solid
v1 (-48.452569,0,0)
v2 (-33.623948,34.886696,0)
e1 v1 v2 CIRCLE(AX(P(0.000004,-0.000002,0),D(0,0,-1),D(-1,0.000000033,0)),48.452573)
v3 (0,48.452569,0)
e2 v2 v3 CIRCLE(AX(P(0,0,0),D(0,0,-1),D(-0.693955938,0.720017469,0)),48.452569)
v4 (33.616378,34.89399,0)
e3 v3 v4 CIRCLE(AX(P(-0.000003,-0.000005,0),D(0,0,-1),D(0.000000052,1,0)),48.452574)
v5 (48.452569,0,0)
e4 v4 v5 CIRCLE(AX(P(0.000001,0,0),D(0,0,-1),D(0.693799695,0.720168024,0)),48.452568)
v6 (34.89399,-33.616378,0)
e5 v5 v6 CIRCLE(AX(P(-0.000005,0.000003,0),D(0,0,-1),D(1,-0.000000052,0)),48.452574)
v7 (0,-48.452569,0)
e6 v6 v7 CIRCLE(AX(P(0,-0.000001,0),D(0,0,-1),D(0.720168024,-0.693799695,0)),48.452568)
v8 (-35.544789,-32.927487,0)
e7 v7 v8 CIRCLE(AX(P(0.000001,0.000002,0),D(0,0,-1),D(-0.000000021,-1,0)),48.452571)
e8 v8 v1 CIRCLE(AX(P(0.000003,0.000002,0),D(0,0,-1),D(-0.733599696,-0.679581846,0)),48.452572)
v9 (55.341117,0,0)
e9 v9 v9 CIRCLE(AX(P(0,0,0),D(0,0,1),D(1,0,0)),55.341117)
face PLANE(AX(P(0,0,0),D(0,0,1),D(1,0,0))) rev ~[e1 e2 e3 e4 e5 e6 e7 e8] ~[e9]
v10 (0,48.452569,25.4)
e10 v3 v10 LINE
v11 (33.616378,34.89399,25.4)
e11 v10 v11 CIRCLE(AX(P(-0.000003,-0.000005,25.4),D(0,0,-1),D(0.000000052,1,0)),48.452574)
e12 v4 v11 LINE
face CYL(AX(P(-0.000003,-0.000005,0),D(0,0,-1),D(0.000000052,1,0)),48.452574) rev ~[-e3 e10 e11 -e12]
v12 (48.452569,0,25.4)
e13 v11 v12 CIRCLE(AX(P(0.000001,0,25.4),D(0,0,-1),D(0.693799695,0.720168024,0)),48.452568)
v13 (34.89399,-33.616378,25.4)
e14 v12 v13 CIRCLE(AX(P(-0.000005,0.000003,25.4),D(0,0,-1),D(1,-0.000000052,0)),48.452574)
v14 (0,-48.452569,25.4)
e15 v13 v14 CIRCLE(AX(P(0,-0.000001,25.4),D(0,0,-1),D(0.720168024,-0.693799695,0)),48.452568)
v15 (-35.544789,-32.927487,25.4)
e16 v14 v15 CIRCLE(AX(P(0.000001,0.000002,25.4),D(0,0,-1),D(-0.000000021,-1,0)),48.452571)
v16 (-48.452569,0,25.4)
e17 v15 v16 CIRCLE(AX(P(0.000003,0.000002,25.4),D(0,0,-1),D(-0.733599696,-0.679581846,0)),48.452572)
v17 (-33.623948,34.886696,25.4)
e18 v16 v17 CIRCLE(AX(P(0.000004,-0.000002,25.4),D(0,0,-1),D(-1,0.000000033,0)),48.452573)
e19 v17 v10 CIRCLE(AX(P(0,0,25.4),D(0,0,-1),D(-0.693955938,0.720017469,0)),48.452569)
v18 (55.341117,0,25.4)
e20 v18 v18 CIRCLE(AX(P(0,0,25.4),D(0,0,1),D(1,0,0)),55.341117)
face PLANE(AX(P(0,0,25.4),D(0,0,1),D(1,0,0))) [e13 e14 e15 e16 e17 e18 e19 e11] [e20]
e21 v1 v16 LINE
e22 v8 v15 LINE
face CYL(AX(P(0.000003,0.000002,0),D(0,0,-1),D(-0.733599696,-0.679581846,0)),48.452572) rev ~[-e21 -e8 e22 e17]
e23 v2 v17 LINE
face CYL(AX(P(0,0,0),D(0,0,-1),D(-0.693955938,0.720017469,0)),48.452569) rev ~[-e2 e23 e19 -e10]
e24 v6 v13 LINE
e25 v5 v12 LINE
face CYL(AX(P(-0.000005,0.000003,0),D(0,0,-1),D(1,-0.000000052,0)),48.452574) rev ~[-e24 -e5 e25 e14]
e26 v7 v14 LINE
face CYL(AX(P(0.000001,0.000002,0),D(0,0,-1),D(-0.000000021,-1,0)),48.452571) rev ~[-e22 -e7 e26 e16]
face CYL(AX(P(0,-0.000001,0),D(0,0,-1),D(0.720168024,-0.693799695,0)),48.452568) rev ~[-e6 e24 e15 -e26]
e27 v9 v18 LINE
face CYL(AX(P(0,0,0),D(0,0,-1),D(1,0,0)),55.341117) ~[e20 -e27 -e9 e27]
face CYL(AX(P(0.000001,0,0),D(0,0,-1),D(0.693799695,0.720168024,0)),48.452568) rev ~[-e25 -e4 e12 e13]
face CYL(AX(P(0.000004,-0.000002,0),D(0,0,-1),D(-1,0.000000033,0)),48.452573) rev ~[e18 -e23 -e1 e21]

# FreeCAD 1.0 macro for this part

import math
import FreeCAD as App
import Part
import Sketcher

V = App.Vector
Q = App.Units.Quantity

doc = App.newDocument("Part")
body = doc.addObject("PartDesign::Body", "Body")

# Sketch on XY plane
sketch1 = body.newObject("Sketcher::SketchObject", "Sketch")
sketch1.AttachmentSupport = (doc.getObject("XY_Plane"), [""])
sketch1.MapMode = "FlatFace"
sketch1.addGeometry(Part.Circle(V(0, 0, 0), V(0, 0, 1), 55.341117), False)
sketch1.addGeometry(Part.ArcOfCircle(Part.Circle(V(-0.000003, -0.000005, 0), V(0, 0, 1), 48.452574), math.radians(46.068355), math.radians(89.999997)), False)
sketch1.addGeometry(Part.ArcOfCircle(Part.Circle(V(0.000001, 0, 0), V(0, 0, 1), 48.452568), math.radians(0), math.radians(46.068355)), False)
sketch1.addGeometry(Part.ArcOfCircle(Part.Circle(V(-0.000005, 0.000003, 0), V(0, 0, 1), 48.452574), math.radians(-43.931645), math.radians(-0.000003)), False)
sketch1.addGeometry(Part.ArcOfCircle(Part.Circle(V(0, -0.000001, 0), V(0, 0, 1), 48.452568), math.radians(-90), math.radians(-43.931645)), False)
sketch1.addGeometry(Part.ArcOfCircle(Part.Circle(V(0.000001, 0.000002, 0), V(0, 0, 1), 48.452571), math.radians(-137.189022), math.radians(-90.000001)), False)
sketch1.addGeometry(Part.ArcOfCircle(Part.Circle(V(0.000003, 0.000002, 0), V(0, 0, 1), 48.452572), math.radians(-179.999998), math.radians(-137.189024)), False)
sketch1.addGeometry(Part.ArcOfCircle(Part.Circle(V(0.000004, -0.000002, 0), V(0, 0, 1), 48.452573), math.radians(133.944079), math.radians(179.999998)), False)
sketch1.addGeometry(Part.ArcOfCircle(Part.Circle(V(0, 0, 0), V(0, 0, 1), 48.452569), math.radians(90), math.radians(133.944077)), False)
sketch1.addConstraint(Sketcher.Constraint("Tangent", 1, 1, 2, 2))
sketch1.addConstraint(Sketcher.Constraint("Tangent", 2, 1, 3, 2))
sketch1.addConstraint(Sketcher.Constraint("Tangent", 3, 1, 4, 2))
sketch1.addConstraint(Sketcher.Constraint("Tangent", 4, 1, 5, 2))
sketch1.addConstraint(Sketcher.Constraint("Tangent", 5, 1, 6, 2))
sketch1.addConstraint(Sketcher.Constraint("Tangent", 6, 1, 7, 2))
sketch1.addConstraint(Sketcher.Constraint("Tangent", 7, 1, 8, 2))
sketch1.addConstraint(Sketcher.Constraint("Tangent", 8, 1, 1, 2))
sketch1.addConstraint(Sketcher.Constraint("Coincident", 0, 3, -1, 1))
sketch1.addConstraint(Sketcher.Constraint("Coincident", 1, 3, -1, 1))
sketch1.addConstraint(Sketcher.Constraint("Coincident", 3, 3, -1, 1))
sketch1.addConstraint(Sketcher.Constraint("Coincident", 5, 3, -1, 1))
sketch1.addConstraint(Sketcher.Constraint("Equal", 5, 6))
sketch1.addConstraint(Sketcher.Constraint("PointOnObject", 2, 1, -1))
sketch1.addConstraint(Sketcher.Constraint("PointOnObject", 4, 1, -2))
sketch1.addConstraint(Sketcher.Constraint("PointOnObject", 6, 1, -1))
sketch1.addConstraint(Sketcher.Constraint("PointOnObject", 8, 1, -2))
sketch1.addConstraint(Sketcher.Constraint("Radius", 5, 48.452571))
sketch1.addConstraint(Sketcher.Constraint("Diameter", 0, 110.682234))
sketch1.addConstraint(Sketcher.Constraint("DistanceY", -1, 1, 1, 1, 34.89399))
sketch1.addConstraint(Sketcher.Constraint("DistanceX", -1, 1, 3, 1, 34.89399))
sketch1.addConstraint(Sketcher.Constraint("DistanceX", 5, 1, -1, 1, 35.544789))
sketch1.addConstraint(Sketcher.Constraint("DistanceX", 7, 1, -1, 1, 33.623948))
pad1 = body.newObject("PartDesign::Pad", "Pad")
pad1.Profile = sketch1
pad1.Length = Q("1 in")

doc.recompute()
